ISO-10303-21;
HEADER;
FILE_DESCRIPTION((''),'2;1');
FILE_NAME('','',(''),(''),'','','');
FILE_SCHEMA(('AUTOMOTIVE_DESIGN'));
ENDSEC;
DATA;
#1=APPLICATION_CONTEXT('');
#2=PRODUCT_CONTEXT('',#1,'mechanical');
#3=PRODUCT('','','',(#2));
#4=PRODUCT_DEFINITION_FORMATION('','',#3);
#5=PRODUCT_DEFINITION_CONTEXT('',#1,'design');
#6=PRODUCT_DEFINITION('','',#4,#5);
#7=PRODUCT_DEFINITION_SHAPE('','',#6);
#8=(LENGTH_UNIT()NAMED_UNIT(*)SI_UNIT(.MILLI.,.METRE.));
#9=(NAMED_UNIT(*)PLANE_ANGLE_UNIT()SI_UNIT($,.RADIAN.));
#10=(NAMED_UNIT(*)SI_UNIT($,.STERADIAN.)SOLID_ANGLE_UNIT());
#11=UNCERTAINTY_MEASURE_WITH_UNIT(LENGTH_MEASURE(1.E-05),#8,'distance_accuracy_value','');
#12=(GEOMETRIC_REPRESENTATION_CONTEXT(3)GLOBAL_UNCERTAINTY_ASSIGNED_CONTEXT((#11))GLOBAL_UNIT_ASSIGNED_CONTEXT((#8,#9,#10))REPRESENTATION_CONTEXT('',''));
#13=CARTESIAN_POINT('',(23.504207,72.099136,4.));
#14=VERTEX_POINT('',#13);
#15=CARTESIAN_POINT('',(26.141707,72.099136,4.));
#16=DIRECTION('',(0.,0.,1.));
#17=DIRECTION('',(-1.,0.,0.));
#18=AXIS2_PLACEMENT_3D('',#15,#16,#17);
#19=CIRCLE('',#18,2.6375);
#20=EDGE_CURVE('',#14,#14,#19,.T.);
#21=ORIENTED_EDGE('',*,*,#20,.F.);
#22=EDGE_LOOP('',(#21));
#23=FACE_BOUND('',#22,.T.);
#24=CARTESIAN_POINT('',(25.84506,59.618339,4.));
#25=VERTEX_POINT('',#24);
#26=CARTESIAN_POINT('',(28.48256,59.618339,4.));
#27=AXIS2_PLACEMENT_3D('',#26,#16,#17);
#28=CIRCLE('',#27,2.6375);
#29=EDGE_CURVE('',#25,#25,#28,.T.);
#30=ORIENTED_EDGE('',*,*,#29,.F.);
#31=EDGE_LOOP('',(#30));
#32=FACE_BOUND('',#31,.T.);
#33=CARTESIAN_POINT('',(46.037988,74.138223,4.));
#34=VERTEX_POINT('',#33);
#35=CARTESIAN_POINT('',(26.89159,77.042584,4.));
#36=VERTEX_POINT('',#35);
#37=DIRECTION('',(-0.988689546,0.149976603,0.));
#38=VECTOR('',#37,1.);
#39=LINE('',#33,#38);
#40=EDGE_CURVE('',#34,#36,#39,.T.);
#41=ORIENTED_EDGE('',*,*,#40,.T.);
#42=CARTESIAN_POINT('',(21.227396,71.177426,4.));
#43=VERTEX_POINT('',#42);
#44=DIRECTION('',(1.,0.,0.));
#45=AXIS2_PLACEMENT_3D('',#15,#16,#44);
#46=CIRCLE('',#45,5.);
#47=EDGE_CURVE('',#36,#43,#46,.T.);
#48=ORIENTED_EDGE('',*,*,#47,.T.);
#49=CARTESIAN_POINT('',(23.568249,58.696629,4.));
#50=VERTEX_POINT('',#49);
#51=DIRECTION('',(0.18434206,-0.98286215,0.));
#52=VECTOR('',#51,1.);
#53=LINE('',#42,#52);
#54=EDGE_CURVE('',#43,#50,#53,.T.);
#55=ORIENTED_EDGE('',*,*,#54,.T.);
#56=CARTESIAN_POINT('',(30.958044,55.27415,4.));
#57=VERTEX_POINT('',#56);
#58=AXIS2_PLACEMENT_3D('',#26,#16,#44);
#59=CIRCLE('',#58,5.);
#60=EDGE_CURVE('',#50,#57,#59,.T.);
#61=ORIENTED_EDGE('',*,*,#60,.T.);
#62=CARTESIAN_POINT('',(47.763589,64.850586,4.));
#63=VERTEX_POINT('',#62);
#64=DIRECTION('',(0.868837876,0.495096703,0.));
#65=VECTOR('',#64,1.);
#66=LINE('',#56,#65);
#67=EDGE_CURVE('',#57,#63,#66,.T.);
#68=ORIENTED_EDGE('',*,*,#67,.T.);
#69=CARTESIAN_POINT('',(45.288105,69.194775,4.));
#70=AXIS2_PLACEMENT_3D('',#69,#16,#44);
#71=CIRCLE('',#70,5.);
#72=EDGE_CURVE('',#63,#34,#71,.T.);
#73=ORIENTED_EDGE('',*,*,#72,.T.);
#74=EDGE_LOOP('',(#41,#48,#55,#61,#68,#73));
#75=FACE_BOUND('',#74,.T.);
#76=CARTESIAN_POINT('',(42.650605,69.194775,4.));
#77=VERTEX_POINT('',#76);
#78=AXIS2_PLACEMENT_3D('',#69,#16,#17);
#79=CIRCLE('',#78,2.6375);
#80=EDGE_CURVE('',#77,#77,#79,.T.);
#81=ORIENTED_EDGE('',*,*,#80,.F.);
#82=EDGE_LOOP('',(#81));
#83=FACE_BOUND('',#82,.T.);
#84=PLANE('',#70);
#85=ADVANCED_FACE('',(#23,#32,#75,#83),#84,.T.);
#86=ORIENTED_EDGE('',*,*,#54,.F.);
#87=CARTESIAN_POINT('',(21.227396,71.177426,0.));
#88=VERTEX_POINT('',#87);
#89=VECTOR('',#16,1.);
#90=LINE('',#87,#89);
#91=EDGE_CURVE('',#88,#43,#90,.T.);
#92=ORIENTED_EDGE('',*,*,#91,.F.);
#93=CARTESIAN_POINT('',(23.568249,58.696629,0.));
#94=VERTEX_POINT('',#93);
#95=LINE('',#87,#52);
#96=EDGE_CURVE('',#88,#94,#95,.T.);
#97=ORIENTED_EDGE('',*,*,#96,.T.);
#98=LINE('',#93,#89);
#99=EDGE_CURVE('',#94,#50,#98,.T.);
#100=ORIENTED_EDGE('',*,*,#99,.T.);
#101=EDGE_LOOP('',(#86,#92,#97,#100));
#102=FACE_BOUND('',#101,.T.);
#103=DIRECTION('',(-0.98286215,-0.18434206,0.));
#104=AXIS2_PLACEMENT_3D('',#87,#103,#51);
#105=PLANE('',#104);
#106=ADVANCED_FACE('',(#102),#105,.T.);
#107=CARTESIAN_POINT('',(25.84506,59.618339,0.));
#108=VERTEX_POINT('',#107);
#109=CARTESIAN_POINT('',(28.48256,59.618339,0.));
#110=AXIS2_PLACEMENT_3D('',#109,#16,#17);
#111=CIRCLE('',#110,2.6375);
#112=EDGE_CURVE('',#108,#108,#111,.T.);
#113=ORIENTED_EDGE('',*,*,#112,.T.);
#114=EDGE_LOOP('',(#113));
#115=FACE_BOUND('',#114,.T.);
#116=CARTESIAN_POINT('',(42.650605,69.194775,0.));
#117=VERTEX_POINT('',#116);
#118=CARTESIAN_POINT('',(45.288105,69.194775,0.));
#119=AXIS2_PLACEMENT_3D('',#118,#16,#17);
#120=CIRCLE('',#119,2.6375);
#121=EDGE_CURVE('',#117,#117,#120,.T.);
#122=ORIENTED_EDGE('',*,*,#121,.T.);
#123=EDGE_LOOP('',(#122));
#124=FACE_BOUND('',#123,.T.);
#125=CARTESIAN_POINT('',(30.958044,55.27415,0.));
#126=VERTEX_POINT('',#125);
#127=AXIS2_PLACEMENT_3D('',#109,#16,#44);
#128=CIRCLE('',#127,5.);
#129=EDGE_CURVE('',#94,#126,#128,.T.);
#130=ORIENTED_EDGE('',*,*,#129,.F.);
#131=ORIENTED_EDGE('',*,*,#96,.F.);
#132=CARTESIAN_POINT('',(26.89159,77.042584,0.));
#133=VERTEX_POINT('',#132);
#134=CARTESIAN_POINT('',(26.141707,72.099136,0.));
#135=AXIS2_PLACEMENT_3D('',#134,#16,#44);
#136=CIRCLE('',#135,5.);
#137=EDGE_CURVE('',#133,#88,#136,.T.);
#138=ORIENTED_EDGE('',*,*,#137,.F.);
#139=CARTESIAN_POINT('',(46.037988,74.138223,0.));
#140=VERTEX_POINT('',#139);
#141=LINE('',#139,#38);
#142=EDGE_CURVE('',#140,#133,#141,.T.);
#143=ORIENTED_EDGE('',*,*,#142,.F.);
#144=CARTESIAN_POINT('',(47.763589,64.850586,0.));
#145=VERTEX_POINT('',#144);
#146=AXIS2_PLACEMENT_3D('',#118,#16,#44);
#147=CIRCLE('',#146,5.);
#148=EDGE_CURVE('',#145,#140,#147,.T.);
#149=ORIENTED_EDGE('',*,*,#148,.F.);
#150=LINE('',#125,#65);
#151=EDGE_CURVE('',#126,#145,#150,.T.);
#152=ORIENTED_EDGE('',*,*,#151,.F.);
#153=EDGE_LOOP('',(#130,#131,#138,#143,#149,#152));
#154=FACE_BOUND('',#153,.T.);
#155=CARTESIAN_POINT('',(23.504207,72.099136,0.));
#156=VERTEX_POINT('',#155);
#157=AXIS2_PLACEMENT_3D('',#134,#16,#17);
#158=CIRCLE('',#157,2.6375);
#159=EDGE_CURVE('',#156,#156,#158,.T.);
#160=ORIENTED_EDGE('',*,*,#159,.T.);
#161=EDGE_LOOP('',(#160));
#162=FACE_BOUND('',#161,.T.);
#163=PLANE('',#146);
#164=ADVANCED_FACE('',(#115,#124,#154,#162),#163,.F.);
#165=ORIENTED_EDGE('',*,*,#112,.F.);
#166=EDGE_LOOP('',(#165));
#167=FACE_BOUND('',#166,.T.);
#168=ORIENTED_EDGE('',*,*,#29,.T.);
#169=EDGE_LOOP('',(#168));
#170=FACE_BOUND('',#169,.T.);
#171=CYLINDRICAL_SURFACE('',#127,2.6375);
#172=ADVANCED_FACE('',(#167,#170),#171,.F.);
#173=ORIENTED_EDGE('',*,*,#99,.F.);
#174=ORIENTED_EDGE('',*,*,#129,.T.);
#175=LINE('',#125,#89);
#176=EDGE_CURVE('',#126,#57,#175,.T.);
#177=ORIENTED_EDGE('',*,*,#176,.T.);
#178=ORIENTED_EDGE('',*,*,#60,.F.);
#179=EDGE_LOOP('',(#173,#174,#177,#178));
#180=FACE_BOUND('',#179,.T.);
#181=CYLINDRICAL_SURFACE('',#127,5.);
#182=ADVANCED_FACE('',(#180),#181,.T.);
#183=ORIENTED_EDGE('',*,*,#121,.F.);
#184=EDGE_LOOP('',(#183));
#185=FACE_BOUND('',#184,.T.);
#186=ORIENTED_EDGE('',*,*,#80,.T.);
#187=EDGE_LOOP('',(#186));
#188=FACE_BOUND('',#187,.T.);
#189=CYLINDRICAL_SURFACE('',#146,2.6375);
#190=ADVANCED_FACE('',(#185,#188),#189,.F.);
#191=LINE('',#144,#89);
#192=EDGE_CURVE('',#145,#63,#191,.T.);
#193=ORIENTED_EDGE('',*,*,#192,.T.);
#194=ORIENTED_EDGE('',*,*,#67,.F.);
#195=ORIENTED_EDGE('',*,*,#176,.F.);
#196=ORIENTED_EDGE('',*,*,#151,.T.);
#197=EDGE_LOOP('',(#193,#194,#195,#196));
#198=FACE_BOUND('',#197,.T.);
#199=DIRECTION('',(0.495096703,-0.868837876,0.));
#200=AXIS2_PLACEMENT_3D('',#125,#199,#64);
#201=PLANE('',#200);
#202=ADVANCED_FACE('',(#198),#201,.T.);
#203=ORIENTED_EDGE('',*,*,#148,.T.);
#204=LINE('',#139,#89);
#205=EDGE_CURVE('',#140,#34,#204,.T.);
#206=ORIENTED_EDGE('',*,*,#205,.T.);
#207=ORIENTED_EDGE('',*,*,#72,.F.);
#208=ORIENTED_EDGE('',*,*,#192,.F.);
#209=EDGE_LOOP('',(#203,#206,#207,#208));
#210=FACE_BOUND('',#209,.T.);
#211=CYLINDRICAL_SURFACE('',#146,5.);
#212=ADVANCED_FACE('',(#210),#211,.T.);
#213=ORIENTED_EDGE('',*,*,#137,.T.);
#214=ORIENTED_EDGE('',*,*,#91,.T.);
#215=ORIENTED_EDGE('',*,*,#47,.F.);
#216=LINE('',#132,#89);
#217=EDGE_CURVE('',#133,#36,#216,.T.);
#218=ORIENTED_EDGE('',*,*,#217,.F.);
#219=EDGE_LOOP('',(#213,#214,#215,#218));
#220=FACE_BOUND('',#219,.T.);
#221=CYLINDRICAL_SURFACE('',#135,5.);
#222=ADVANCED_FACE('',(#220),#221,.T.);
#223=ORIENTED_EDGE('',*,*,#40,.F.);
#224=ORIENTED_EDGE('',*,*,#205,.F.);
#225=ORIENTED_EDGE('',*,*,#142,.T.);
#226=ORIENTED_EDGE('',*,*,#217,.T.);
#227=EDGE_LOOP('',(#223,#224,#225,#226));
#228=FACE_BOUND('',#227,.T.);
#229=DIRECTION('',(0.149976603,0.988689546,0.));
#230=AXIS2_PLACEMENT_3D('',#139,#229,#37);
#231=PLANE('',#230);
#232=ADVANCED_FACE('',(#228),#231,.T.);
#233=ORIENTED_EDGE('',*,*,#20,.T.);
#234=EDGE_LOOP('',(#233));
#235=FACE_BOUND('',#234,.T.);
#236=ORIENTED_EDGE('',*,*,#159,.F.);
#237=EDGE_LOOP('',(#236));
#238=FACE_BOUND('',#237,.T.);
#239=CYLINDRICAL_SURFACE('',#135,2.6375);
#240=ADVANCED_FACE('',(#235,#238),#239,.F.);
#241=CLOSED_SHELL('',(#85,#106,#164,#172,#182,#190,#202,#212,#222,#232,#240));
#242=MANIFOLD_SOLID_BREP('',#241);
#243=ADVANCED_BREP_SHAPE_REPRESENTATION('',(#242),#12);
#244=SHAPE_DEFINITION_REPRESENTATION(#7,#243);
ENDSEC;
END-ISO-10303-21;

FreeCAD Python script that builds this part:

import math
import FreeCAD as App
import Part
import Sketcher
from FreeCAD import Vector
Q = App.Units.Quantity

doc = App.newDocument("Part")
body = doc.addObject("PartDesign::Body", "Body")

# Sketch on XY plane
sketch1 = body.newObject("Sketcher::SketchObject", "Sketch")
sketch1.AttachmentSupport = (doc.getObject("XY_Plane"), [""])
sketch1.MapMode = "FlatFace"
sketch1.AttachmentOffset = App.Placement(Vector(0, 0, 4), App.Rotation())
sketch1.addGeometry([
    Part.LineSegment(Vector(46, 74.1, 0), Vector(26.9, 77, 0)),  # 0
    Part.ArcOfCircle(Part.Circle(Vector(26.1, 72.1, 0), Vector(0, 0, 1), 5), math.radians(81), math.radians(191)),  # 1
    Part.LineSegment(Vector(21.2, 71.2, 0), Vector(23.6, 58.7, 0)),  # 2
    Part.ArcOfCircle(Part.Circle(Vector(28.5, 59.6, 0), Vector(0, 0, 1), 5), math.radians(-169), math.radians(-60)),  # 3
    Part.LineSegment(Vector(31, 55.3, 0), Vector(47.8, 64.9, 0)),  # 4
    Part.ArcOfCircle(Part.Circle(Vector(45.3, 69.2, 0), Vector(0, 0, 1), 5), math.radians(-60), math.radians(81)),  # 5
    Part.Circle(Vector(28.5, 59.6, 0), Vector(0, 0, 1), 2.6),  # 6
    Part.Circle(Vector(26.1, 72.1, 0), Vector(0, 0, 1), 2.6),  # 7
    Part.Circle(Vector(45.3, 69.2, 0), Vector(0, 0, 1), 2.6),  # 8
], False)
sketch1.addConstraint([
    Sketcher.Constraint("Tangent", 0, 2, 1, 1),
    Sketcher.Constraint("Tangent", 1, 2, 2, 1),
    Sketcher.Constraint("Tangent", 2, 2, 3, 1),
    Sketcher.Constraint("Tangent", 3, 2, 4, 1),
    Sketcher.Constraint("Tangent", 4, 2, 5, 1),
    Sketcher.Constraint("Tangent", 5, 2, 0, 1),
    Sketcher.Constraint("Coincident", 6, 3, 3, 3),
    Sketcher.Constraint("Coincident", 7, 3, 1, 3),
    Sketcher.Constraint("Coincident", 8, 3, 5, 3),
    Sketcher.Constraint("Equal", 1, 3),
    Sketcher.Constraint("Equal", 3, 5),
    Sketcher.Constraint("Equal", 6, 7),
    Sketcher.Constraint("Equal", 7, 8),
    Sketcher.Constraint("Radius", 1, Q("5 mm")),
    Sketcher.Constraint("Diameter", 6, Q("5.275 mm")),
    Sketcher.Constraint("DistanceX", 1, 3, 5, 3, Q("19.146398 mm")),
    Sketcher.Constraint("DistanceX", 5, 2, 4, 2, Q("1.725601 mm")),
    Sketcher.Constraint("Distance", 0, Q("19.36543 mm")),
    Sketcher.Constraint("Distance", 2, Q("12.698421 mm")),
    Sketcher.Constraint("DistanceX", -1, 1, 3, 3, Q("28.48256 mm")),
    Sketcher.Constraint("DistanceY", -1, 1, 3, 3, Q("59.618339 mm")),
])
pad1 = body.newObject("PartDesign::Pad", "Pad")
pad1.Profile = sketch1
pad1.Length = 4
pad1.Reversed = True

doc.recompute()
